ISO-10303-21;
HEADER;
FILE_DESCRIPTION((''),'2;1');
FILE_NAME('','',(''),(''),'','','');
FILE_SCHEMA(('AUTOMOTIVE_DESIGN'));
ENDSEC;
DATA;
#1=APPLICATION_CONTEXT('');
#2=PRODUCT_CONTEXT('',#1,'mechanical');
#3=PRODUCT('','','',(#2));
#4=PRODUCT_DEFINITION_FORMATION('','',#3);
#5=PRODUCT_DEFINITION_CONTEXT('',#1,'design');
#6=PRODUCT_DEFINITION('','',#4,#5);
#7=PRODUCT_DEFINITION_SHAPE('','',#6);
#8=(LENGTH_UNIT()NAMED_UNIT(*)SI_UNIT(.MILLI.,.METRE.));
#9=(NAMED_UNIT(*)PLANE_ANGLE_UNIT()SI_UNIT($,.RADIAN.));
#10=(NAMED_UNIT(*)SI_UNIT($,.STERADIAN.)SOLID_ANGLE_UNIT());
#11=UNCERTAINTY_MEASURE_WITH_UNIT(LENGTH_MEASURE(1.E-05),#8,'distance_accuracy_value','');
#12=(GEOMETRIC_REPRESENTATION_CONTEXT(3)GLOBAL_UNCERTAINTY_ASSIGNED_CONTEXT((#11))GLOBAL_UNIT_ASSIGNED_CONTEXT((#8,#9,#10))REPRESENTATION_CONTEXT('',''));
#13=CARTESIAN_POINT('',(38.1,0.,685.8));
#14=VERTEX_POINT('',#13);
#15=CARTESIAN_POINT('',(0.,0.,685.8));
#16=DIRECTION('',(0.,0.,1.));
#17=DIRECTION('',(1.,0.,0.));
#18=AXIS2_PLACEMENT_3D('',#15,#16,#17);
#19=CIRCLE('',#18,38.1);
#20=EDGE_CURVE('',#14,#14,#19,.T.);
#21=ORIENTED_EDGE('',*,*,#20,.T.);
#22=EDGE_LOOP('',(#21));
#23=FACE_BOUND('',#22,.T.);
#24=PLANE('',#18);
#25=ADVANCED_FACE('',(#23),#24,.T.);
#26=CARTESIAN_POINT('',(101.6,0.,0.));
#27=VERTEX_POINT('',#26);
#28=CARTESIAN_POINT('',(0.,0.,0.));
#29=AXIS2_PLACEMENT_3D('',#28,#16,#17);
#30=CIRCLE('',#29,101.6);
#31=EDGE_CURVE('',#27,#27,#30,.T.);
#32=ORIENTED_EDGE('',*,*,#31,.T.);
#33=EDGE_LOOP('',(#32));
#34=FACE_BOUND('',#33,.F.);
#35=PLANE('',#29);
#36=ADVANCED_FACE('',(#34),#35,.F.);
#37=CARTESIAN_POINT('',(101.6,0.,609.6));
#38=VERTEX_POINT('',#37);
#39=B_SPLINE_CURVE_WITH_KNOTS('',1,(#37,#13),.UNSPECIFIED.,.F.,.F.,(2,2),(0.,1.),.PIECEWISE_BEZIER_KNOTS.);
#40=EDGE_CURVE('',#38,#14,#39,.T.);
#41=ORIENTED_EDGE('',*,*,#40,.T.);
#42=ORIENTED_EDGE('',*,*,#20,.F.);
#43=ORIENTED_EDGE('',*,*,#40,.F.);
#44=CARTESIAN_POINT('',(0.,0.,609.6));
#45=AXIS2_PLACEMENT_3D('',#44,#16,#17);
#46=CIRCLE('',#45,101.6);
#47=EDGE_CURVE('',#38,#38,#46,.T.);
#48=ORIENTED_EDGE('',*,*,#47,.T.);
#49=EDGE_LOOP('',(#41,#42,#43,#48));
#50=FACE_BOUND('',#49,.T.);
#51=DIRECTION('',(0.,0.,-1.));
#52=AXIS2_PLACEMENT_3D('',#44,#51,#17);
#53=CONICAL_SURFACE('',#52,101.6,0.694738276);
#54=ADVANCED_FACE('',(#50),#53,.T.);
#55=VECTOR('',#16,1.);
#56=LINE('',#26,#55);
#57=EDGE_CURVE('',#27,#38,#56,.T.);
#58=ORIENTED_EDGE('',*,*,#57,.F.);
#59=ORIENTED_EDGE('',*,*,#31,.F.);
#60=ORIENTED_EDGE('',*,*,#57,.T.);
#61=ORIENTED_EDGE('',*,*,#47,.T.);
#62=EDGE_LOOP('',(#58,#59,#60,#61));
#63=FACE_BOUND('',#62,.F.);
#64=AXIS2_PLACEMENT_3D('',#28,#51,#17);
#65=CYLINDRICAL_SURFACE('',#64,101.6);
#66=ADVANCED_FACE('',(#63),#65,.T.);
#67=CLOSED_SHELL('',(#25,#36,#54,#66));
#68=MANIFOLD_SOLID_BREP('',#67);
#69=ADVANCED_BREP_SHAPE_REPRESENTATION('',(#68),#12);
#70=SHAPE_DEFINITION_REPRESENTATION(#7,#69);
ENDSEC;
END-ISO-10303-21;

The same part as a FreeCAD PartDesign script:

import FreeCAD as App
import Part
import Sketcher
from FreeCAD import Vector
Q = App.Units.Quantity

doc = App.newDocument("Part")
body = doc.addObject("PartDesign::Body", "Body")

# Sketch on XY plane
sketch1 = body.newObject("Sketcher::SketchObject", "Sketch")
sketch1.AttachmentSupport = (doc.getObject("XY_Plane"), [""])
sketch1.MapMode = "FlatFace"
sketch1.addGeometry(Part.Circle(Vector(0, 0, 0), Vector(0, 0, 1), 102), False)
sketch1.addConstraint([
    Sketcher.Constraint("Coincident", 0, 3, -1, 1),
    Sketcher.Constraint("Diameter", 0, Q("8 in")),
])
pad1 = body.newObject("PartDesign::Pad", "Pad")
pad1.Profile = sketch1
pad1.Length = Q("24 in")

# Sketch on XY plane
sketch2 = body.newObject("Sketcher::SketchObject", "Sketch001")
sketch2.AttachmentSupport = (doc.getObject("XY_Plane"), [""])
sketch2.MapMode = "FlatFace"
sketch2.AttachmentOffset = App.Placement(Vector(0, 0, 24 * 25.4), App.Rotation())
sketch2.addGeometry(Part.Circle(Vector(0, 0, 0), Vector(0, 0, 1), 102), False)
sketch2.addConstraint([
    Sketcher.Constraint("Coincident", 0, 3, -1, 1),
    Sketcher.Constraint("Diameter", 0, Q("8 in")),
])

# Sketch on XY plane
sketch3 = body.newObject("Sketcher::SketchObject", "Sketch002")
sketch3.AttachmentSupport = (doc.getObject("XY_Plane"), [""])
sketch3.MapMode = "FlatFace"
sketch3.AttachmentOffset = App.Placement(Vector(0, 0, 27 * 25.4), App.Rotation())
sketch3.addGeometry(Part.Circle(Vector(0, 0, 0), Vector(0, 0, 1), 38), False)
sketch3.addConstraint([
    Sketcher.Constraint("Coincident", 0, 3, -1, 1),
    Sketcher.Constraint("Diameter", 0, Q("3 in")),
])

additiveloft = body.newObject("PartDesign::AdditiveLoft", "AdditiveLoft")
additiveloft.Profile = sketch2
additiveloft.Sections = [sketch3]

doc.recompute()
